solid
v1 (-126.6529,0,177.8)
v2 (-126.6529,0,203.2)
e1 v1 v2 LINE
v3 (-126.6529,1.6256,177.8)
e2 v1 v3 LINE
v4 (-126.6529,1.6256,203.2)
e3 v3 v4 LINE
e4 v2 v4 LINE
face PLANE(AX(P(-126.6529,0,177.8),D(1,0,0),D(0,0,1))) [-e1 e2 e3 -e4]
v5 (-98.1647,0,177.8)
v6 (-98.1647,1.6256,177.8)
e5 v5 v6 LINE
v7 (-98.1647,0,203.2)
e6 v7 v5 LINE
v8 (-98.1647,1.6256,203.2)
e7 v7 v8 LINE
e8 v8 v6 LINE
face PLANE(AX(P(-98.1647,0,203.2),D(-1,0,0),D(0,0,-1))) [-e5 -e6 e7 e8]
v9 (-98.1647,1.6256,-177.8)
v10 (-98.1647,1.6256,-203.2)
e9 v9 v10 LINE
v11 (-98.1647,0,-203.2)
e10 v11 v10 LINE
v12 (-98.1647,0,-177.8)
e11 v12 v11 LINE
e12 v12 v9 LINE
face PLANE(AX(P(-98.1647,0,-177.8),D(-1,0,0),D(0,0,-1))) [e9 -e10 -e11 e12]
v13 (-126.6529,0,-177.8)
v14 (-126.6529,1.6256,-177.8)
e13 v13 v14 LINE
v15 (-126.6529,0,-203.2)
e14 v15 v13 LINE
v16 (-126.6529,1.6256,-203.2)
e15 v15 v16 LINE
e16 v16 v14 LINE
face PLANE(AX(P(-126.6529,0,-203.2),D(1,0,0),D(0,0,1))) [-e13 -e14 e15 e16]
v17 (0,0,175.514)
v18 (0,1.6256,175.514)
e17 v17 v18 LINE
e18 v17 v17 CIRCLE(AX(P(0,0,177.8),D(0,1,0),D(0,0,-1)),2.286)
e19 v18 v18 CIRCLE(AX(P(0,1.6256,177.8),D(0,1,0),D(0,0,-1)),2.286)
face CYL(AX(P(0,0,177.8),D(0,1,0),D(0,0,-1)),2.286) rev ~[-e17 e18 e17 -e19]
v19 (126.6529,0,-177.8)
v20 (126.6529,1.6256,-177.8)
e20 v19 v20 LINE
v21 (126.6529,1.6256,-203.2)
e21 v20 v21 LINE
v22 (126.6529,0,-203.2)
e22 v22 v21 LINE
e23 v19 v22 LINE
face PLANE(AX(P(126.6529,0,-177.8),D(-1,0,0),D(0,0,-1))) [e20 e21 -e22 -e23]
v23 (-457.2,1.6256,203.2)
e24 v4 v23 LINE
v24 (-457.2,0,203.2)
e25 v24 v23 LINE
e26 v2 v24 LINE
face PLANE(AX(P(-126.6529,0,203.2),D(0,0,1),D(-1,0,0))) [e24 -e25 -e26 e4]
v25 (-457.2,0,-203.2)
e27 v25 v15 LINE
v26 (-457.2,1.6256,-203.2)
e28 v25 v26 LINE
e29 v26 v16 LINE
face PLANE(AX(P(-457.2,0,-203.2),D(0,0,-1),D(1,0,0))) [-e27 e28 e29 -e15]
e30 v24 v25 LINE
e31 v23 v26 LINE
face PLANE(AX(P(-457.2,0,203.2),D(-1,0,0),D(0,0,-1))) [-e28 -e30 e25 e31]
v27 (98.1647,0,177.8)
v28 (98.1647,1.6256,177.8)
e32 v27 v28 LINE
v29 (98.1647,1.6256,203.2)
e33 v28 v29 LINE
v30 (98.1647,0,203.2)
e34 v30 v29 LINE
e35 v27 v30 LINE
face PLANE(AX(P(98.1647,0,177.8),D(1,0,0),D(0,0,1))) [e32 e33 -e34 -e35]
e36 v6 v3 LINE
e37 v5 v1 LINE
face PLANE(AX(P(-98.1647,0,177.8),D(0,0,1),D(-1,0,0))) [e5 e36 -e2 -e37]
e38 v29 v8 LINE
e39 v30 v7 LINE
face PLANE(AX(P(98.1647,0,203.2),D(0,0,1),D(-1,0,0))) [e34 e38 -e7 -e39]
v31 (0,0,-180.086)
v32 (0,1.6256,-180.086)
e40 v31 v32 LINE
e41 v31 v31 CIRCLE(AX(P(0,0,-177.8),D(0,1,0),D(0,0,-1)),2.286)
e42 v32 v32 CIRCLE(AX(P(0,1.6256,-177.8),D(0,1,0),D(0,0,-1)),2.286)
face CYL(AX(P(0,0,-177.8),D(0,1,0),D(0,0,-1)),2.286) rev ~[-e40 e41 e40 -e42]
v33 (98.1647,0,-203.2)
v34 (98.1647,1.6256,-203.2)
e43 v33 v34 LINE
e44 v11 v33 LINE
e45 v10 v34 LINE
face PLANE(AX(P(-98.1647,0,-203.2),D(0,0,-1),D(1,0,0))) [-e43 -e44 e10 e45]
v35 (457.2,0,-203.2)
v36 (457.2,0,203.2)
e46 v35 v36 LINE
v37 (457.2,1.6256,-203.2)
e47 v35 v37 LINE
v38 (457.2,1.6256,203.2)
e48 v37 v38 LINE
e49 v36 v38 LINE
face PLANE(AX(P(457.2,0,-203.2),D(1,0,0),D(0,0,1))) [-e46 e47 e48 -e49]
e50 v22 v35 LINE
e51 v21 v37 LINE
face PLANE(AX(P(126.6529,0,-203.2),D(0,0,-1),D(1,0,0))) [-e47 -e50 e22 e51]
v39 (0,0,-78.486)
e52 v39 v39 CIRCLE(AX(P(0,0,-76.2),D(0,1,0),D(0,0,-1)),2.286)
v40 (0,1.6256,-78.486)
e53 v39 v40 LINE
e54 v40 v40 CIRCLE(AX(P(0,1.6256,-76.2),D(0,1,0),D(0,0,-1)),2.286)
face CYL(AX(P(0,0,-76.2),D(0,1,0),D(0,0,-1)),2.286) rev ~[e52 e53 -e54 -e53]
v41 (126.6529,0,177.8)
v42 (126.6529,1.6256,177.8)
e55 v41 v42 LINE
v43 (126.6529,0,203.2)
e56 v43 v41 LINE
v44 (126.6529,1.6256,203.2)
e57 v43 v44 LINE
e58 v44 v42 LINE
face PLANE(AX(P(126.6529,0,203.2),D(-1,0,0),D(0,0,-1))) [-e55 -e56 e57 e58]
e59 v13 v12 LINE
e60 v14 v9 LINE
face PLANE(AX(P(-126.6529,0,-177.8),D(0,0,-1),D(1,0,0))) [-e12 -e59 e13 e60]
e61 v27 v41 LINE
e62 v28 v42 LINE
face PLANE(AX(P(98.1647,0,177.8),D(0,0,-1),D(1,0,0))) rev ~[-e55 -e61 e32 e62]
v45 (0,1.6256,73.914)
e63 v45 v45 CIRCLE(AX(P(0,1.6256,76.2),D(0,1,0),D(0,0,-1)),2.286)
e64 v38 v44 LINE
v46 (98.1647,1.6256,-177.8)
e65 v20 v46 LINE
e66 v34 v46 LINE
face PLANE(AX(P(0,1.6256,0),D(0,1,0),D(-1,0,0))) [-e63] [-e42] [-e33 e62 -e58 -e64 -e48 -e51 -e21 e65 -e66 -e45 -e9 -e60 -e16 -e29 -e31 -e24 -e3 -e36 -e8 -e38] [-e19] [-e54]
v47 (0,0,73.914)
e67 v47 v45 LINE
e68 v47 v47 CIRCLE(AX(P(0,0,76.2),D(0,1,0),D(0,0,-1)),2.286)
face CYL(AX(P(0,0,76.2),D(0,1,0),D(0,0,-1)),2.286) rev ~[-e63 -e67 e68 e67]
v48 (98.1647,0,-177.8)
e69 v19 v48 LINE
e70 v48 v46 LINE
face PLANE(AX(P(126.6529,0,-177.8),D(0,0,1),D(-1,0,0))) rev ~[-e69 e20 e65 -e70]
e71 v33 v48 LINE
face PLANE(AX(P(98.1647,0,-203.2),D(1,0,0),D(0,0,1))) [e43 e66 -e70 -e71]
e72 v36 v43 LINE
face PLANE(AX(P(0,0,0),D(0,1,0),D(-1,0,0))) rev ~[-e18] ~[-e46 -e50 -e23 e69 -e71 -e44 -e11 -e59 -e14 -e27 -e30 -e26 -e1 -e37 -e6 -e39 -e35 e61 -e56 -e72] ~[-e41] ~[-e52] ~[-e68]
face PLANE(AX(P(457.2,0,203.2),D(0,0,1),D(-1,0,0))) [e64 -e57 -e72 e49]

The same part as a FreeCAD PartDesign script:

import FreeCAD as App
import Part
import Sketcher

V = App.Vector
Q = App.Units.Quantity

doc = App.newDocument("Part")
body = doc.addObject("PartDesign::Body", "Body")

sketch1 = body.newObject("Sketcher::SketchObject", "Sketch")
sketch1.AttachmentSupport = (doc.getObject("XZ_Plane"), [""])
sketch1.MapMode = "FlatFace"
sketch1.addGeometry([
    Part.LineSegment(V(98.1647, -203.2, 0), V(-98.1647, -203.2, 0)),
    Part.LineSegment(V(-98.1647, -203.2, 0), V(-98.1647, -177.8, 0)),
    Part.LineSegment(V(-98.1647, -177.8, 0), V(-126.6529, -177.8, 0)),
    Part.LineSegment(V(-126.6529, -177.8, 0), V(-126.6529, -203.2, 0)),
    Part.LineSegment(V(-126.6529, -203.2, 0), V(-457.2, -203.2, 0)),
    Part.LineSegment(V(-457.2, -203.2, 0), V(-457.2, 203.2, 0)),
    Part.LineSegment(V(-457.2, 203.2, 0), V(-126.6529, 203.2, 0)),
    Part.LineSegment(V(-126.6529, 203.2, 0), V(-126.6529, 177.8, 0)),
    Part.LineSegment(V(-126.6529, 177.8, 0), V(-98.1647, 177.8, 0)),
    Part.LineSegment(V(-98.1647, 177.8, 0), V(-98.1647, 203.2, 0)),
    Part.LineSegment(V(-98.1647, 203.2, 0), V(98.1647, 203.2, 0)),
    Part.LineSegment(V(98.1647, 203.2, 0), V(98.1647, 177.8, 0)),
    Part.LineSegment(V(98.1647, 177.8, 0), V(126.6529, 177.8, 0)),
    Part.LineSegment(V(126.6529, 177.8, 0), V(126.6529, 203.2, 0)),
    Part.LineSegment(V(126.6529, 203.2, 0), V(457.2, 203.2, 0)),
    Part.LineSegment(V(457.2, 203.2, 0), V(457.2, -203.2, 0)),
    Part.LineSegment(V(457.2, -203.2, 0), V(126.6529, -203.2, 0)),
    Part.LineSegment(V(126.6529, -203.2, 0), V(126.6529, -177.8, 0)),
    Part.LineSegment(V(126.6529, -177.8, 0), V(98.1647, -177.8, 0)),
    Part.LineSegment(V(98.1647, -177.8, 0), V(98.1647, -203.2, 0)),
], False)
sketch1.addConstraint([
    Sketcher.Constraint("Coincident", 0, 2, 1, 1),
    Sketcher.Constraint("Coincident", 1, 2, 2, 1),
    Sketcher.Constraint("Coincident", 2, 2, 3, 1),
    Sketcher.Constraint("Coincident", 3, 2, 4, 1),
    Sketcher.Constraint("Coincident", 4, 2, 5, 1),
    Sketcher.Constraint("Coincident", 5, 2, 6, 1),
    Sketcher.Constraint("Coincident", 6, 2, 7, 1),
    Sketcher.Constraint("Coincident", 7, 2, 8, 1),
    Sketcher.Constraint("Coincident", 8, 2, 9, 1),
    Sketcher.Constraint("Coincident", 9, 2, 10, 1),
    Sketcher.Constraint("Coincident", 10, 2, 11, 1),
    Sketcher.Constraint("Coincident", 11, 2, 12, 1),
    Sketcher.Constraint("Coincident", 12, 2, 13, 1),
    Sketcher.Constraint("Coincident", 13, 2, 14, 1),
    Sketcher.Constraint("Coincident", 14, 2, 15, 1),
    Sketcher.Constraint("Coincident", 15, 2, 16, 1),
    Sketcher.Constraint("Coincident", 16, 2, 17, 1),
    Sketcher.Constraint("Coincident", 17, 2, 18, 1),
    Sketcher.Constraint("Coincident", 18, 2, 19, 1),
    Sketcher.Constraint("Coincident", 19, 2, 0, 1),
    Sketcher.Constraint("Horizontal", 0),
    Sketcher.Constraint("Vertical", 1),
    Sketcher.Constraint("Horizontal", 2),
    Sketcher.Constraint("Vertical", 3),
    Sketcher.Constraint("Horizontal", 4),
    Sketcher.Constraint("Vertical", 5),
    Sketcher.Constraint("Horizontal", 6),
    Sketcher.Constraint("Vertical", 7),
    Sketcher.Constraint("Horizontal", 8),
    Sketcher.Constraint("Vertical", 9),
    Sketcher.Constraint("Horizontal", 10),
    Sketcher.Constraint("Vertical", 11),
    Sketcher.Constraint("Horizontal", 12),
    Sketcher.Constraint("Vertical", 13),
    Sketcher.Constraint("Horizontal", 14),
    Sketcher.Constraint("Vertical", 15),
    Sketcher.Constraint("Horizontal", 16),
    Sketcher.Constraint("Vertical", 17),
    Sketcher.Constraint("Horizontal", 18),
    Sketcher.Constraint("Vertical", 19),
    Sketcher.Constraint("Symmetric", 0, 2, 10, 2, -1, 1),
    Sketcher.Constraint("Symmetric", 2, 2, 12, 2, -1, 1),
    Sketcher.Constraint("Symmetric", 4, 2, 14, 2, -1, 1),
    Sketcher.Constraint("Symmetric", 6, 2, 16, 2, -1, 1),
    Sketcher.Constraint("Symmetric", 8, 2, 18, 2, -1, 1),
    Sketcher.Constraint("Symmetric", 8, 2, 11, 2, -2),
    Sketcher.Constraint("Symmetric", 6, 2, 13, 2, -2),
    Sketcher.Constraint("Horizontal", 0, 2, 3, 2),
    Sketcher.Constraint("DistanceY", 1, 1, 1, 2, Q("1 in")),
    Sketcher.Constraint("DistanceY", 5, 1, 5, 2, Q("16 in")),
    Sketcher.Constraint("DistanceX", 0, 2, 0, 1, Q("7.7295 in")),
    Sketcher.Constraint("DistanceX", 4, 2, -1, 1, Q("18 in")),
    Sketcher.Constraint("DistanceX", 2, 2, 2, 1, Q("28.4882 mm")),
])
pad1 = body.newObject("PartDesign::Pad", "Pad")
pad1.Profile = sketch1
pad1.Length = Q("0.064 in")
pad1.Reversed = True

sketch2 = body.newObject("Sketcher::SketchObject", "Sketch001")
sketch2.AttachmentSupport = (doc.getObject("XZ_Plane"), [""])
sketch2.MapMode = "FlatFace"
sketch2.addGeometry([
    Part.Circle(V(0, -76.2, 0), V(0, 0, 1), 2.286),
    Part.Circle(V(0, 76.2, 0), V(0, 0, 1), 2.286),
    Part.Circle(V(0, -177.8, 0), V(0, 0, 1), 2.286),
    Part.Circle(V(0, 177.8, 0), V(0, 0, 1), 2.286),
], False)
sketch2.addConstraint([
    Sketcher.Constraint("Equal", 0, 1),
    Sketcher.Constraint("Equal", 1, 2),
    Sketcher.Constraint("Equal", 2, 3),
    Sketcher.Constraint("Symmetric", 0, 3, 1, 3, -1, 1),
    Sketcher.Constraint("Symmetric", 2, 3, 3, 3, -1, 1),
    Sketcher.Constraint("PointOnObject", 0, 3, -2),
    Sketcher.Constraint("PointOnObject", 2, 3, -2),
    Sketcher.Constraint("Diameter", 0, Q("0.18 in")),
    Sketcher.Constraint("DistanceY", 0, 3, -1, 1, Q("3 in")),
    Sketcher.Constraint("DistanceY", 2, 3, -1, 1, Q("7 in")),
])
doc.recompute()
hole = body.newObject("PartDesign::Hole", "Hole")
hole.Profile = sketch2
hole.ThreadType = "None"
hole.Diameter = Q("0.18 in")
hole.DepthType = "ThroughAll"

doc.recompute()
